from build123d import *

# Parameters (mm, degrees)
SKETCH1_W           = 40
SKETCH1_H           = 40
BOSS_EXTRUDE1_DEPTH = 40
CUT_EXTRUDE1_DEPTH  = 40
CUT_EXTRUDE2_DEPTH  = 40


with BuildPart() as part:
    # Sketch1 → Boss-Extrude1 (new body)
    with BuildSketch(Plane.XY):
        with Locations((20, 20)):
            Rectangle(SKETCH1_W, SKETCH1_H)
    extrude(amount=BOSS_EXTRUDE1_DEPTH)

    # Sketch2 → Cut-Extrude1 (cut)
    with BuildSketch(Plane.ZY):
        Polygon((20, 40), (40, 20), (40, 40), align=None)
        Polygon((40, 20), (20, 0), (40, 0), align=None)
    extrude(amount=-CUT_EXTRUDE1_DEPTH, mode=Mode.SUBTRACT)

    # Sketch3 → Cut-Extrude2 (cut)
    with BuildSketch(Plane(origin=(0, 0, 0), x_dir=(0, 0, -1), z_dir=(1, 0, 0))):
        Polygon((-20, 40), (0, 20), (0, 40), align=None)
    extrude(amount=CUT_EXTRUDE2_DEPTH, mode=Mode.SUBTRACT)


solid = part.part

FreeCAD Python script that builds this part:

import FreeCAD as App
import Part
import Sketcher
Q = App.Units.Quantity


def add_polygon(sketch, points):
    """Adds a closed chain of lines whose ends are joined by coincident constraints."""
    first, n = sketch.GeometryCount, len(points)
    for a, b in zip(points, points[1:] + points[:1]):
        sketch.addGeometry(Part.LineSegment(App.Vector(*a, 0), App.Vector(*b, 0)), False)
    for i in range(n):
        sketch.addConstraint(Sketcher.Constraint("Coincident", first + i, 2, first + (i + 1) % n, 1))

doc = App.newDocument("Part")
body = doc.addObject("PartDesign::Body", "Body")

sketch1 = doc.addObject("Sketcher::SketchObject", "Sketch")
body.addObject(sketch1)
sketch1.AttachmentSupport = (doc.XY_Plane, [""])
sketch1.MapMode = "FlatFace"
add_polygon(sketch1, [(0, 40), (0, 0), (40, 0), (40, 40)])
sketch1.addConstraint([
    Sketcher.Constraint("Vertical", 0),
    Sketcher.Constraint("Horizontal", 1),
    Sketcher.Constraint("Vertical", 2),
    Sketcher.Constraint("Horizontal", 3),
    Sketcher.Constraint("Coincident", 0, 2, -1, 1),
    Sketcher.Constraint("Equal", 3, 0),
    Sketcher.Constraint("DistanceX", 1, 1, 1, 2, Q("40 mm")),
])
pad1 = doc.addObject("PartDesign::Pad", "Pad")
body.addObject(pad1)
pad1.Profile = sketch1
pad1.Length = 40

sketch2 = doc.addObject("Sketcher::SketchObject", "Sketch001")
body.addObject(sketch2)
sketch2.AttachmentSupport = (doc.YZ_Plane, [""])
sketch2.MapMode = "FlatFace"
add_polygon(sketch2, [(40, 20), (20, 40), (40, 40)])
add_polygon(sketch2, [(20, 40), (0, 20), (0, 40)])
sketch2.addConstraint([
    Sketcher.Constraint("Horizontal", 1),
    Sketcher.Constraint("Vertical", 2),
    Sketcher.Constraint("Vertical", 4),
    Sketcher.Constraint("Horizontal", 5),
    Sketcher.Constraint("Coincident", 5, 2, 0, 2),
    Sketcher.Constraint("PointOnObject", 3, 2, -2),
    Sketcher.Constraint("Perpendicular", 0, 3),
    Sketcher.Constraint("Horizontal", 2, 2, 3, 2),
    Sketcher.Constraint("Equal", 1, 5),
    Sketcher.Constraint("DistanceX", 1, 1, 1, 2, Q("20 mm")),
    Sketcher.Constraint("DistanceY", -1, 1, 0, 2, Q("40 mm")),
])
pocket1 = doc.addObject("PartDesign::Pocket", "Pocket")
body.addObject(pocket1)
pocket1.Profile = sketch2
pocket1.Length = 40
pocket1.Reversed = True

sketch3 = doc.addObject("Sketcher::SketchObject", "Sketch002")
body.addObject(sketch3)
sketch3.AttachmentSupport = (doc.YZ_Plane, [""])
sketch3.MapMode = "FlatFace"
add_polygon(sketch3, [(40, 20), (20, 0), (40, 0)])
sketch3.addConstraint([
    Sketcher.Constraint("Horizontal", 1),
    Sketcher.Constraint("Vertical", 2),
    Sketcher.Constraint("PointOnObject", 0, 2, -1),
    Sketcher.Constraint("Equal", 1, 2),
    Sketcher.Constraint("DistanceX", 1, 1, 1, 2, Q("20 mm")),
    Sketcher.Constraint("DistanceX", -1, 1, 0, 2, Q("20 mm")),
])
pocket2 = doc.addObject("PartDesign::Pocket", "Pocket001")
body.addObject(pocket2)
pocket2.Profile = sketch3
pocket2.Length = 40
pocket2.Reversed = True

doc.recompute()
